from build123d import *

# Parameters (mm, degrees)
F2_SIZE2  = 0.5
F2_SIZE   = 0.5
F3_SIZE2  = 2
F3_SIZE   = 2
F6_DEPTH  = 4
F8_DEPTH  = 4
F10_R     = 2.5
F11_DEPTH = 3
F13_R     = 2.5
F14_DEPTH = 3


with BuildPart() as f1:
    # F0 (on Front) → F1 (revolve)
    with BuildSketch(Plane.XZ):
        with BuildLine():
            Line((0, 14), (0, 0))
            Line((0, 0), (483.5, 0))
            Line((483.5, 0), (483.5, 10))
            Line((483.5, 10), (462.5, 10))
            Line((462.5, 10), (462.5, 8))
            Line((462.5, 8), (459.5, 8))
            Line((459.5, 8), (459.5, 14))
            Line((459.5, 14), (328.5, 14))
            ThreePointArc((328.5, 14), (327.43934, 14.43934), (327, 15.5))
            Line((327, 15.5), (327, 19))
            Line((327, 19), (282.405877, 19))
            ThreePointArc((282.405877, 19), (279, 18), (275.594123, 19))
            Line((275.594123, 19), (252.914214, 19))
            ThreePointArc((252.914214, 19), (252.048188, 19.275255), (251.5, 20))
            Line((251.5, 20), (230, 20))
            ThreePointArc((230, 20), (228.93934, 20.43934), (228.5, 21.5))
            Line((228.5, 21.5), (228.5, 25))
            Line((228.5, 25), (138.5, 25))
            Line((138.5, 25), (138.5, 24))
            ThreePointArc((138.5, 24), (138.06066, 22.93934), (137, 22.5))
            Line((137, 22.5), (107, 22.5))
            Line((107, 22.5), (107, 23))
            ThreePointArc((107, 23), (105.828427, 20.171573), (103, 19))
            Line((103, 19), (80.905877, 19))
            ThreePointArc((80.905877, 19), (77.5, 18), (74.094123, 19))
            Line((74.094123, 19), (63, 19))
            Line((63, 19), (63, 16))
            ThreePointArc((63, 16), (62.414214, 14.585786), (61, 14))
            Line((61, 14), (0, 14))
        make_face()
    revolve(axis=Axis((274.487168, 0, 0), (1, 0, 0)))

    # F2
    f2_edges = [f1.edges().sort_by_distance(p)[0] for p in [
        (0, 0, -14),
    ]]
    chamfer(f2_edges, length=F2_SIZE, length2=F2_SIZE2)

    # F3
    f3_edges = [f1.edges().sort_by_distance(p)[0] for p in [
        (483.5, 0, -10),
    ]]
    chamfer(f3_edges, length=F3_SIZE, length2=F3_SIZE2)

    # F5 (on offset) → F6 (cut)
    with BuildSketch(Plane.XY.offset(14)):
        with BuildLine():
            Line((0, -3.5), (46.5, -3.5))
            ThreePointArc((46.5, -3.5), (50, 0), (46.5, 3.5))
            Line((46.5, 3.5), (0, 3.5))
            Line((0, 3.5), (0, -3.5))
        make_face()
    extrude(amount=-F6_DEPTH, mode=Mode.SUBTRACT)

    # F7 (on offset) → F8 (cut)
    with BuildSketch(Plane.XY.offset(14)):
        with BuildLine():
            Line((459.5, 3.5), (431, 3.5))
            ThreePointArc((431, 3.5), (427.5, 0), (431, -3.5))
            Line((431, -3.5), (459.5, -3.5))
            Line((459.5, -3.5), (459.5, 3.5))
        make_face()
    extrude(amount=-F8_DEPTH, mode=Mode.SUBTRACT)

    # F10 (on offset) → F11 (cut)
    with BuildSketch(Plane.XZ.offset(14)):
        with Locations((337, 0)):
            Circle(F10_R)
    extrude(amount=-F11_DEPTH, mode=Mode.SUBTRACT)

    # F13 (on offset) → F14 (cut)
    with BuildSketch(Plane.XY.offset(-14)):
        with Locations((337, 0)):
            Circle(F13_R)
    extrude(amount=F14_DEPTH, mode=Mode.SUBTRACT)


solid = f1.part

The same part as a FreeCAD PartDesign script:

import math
import FreeCAD as App
import Part
import Sketcher
from FreeCAD import Vector
Q = App.Units.Quantity


def edges_at(feature, points):
    """Names of the edges that pass closest to the given points."""
    edges = feature.Shape.Edges
    near = lambda p: min(range(len(edges)), key=lambda i: edges[i].distToShape(Part.Vertex(*p))[0])
    return sorted({f"Edge{near(p) + 1}" for p in points})

doc = App.newDocument("Part")
body = doc.addObject("PartDesign::Body", "Body")

# Sketch on XZ plane
sketch1 = doc.addObject("Sketcher::SketchObject", "Sketch")
body.addObject(sketch1)
sketch1.AttachmentSupport = (doc.XZ_Plane, [""])
sketch1.MapMode = "FlatFace"
sketch1.addGeometry(Part.LineSegment(Vector(0, 14, 0), Vector(0, 0, 0)), False)
sketch1.addGeometry(Part.LineSegment(Vector(0, 0, 0), Vector(483.5, 0, 0)), False)
sketch1.addGeometry(Part.LineSegment(Vector(483.5, 0, 0), Vector(483.5, 10, 0)), False)
sketch1.addGeometry(Part.LineSegment(Vector(483.5, 10, 0), Vector(462.5, 10, 0)), False)
sketch1.addGeometry(Part.LineSegment(Vector(462.5, 10, 0), Vector(462.5, 8, 0)), False)
sketch1.addGeometry(Part.LineSegment(Vector(462.5, 8, 0), Vector(459.5, 8, 0)), False)
sketch1.addGeometry(Part.LineSegment(Vector(459.5, 8, 0), Vector(459.5, 14, 0)), False)
sketch1.addGeometry(Part.LineSegment(Vector(459.5, 14, 0), Vector(328.5, 14, 0)), False)
sketch1.addGeometry(Part.ArcOfCircle(Part.Circle(Vector(328.5, 15.5, 0), Vector(0, 0, 1), 1.5), math.radians(-180), math.radians(-90)), False)
sketch1.addGeometry(Part.LineSegment(Vector(327, 15.5, 0), Vector(327, 19, 0)), False)
sketch1.addGeometry(Part.LineSegment(Vector(327, 19, 0), Vector(282.4, 19, 0)), False)
sketch1.addGeometry(Part.ArcOfCircle(Part.Circle(Vector(279, 24.3, 0), Vector(0, 0, 1), 6.3), math.radians(-123), math.radians(-57)), False)
sketch1.addGeometry(Part.LineSegment(Vector(275.6, 19, 0), Vector(252.9, 19, 0)), False)
sketch1.addGeometry(Part.ArcOfCircle(Part.Circle(Vector(252.9, 20.5, 0), Vector(0, 0, 1), 1.5), math.radians(-161), math.radians(-90)), False)
sketch1.addGeometry(Part.LineSegment(Vector(251.5, 20, 0), Vector(230, 20, 0)), False)
sketch1.addGeometry(Part.ArcOfCircle(Part.Circle(Vector(230, 21.5, 0), Vector(0, 0, 1), 1.5), math.radians(-180), math.radians(-90)), False)
sketch1.addGeometry(Part.LineSegment(Vector(228.5, 21.5, 0), Vector(228.5, 25, 0)), False)
sketch1.addGeometry(Part.LineSegment(Vector(228.5, 25, 0), Vector(138.5, 25, 0)), False)
sketch1.addGeometry(Part.LineSegment(Vector(138.5, 25, 0), Vector(138.5, 24, 0)), False)
sketch1.addGeometry(Part.ArcOfCircle(Part.Circle(Vector(137, 24, 0), Vector(0, 0, 1), 1.5), math.radians(-90), math.radians(0)), False)
sketch1.addGeometry(Part.LineSegment(Vector(137, 22.5, 0), Vector(107, 22.5, 0)), False)
sketch1.addGeometry(Part.LineSegment(Vector(107, 22.5, 0), Vector(107, 23, 0)), False)
sketch1.addGeometry(Part.ArcOfCircle(Part.Circle(Vector(103, 23, 0), Vector(0, 0, 1), 4), math.radians(-90), math.radians(0)), False)
sketch1.addGeometry(Part.LineSegment(Vector(103, 19, 0), Vector(80.9, 19, 0)), False)
sketch1.addGeometry(Part.ArcOfCircle(Part.Circle(Vector(77.5, 24.3, 0), Vector(0, 0, 1), 6.3), math.radians(-123), math.radians(-57)), False)
sketch1.addGeometry(Part.LineSegment(Vector(74.1, 19, 0), Vector(63, 19, 0)), False)
sketch1.addGeometry(Part.LineSegment(Vector(63, 19, 0), Vector(63, 16, 0)), False)
sketch1.addGeometry(Part.ArcOfCircle(Part.Circle(Vector(61, 16, 0), Vector(0, 0, 1), 2), math.radians(-90), math.radians(0)), False)
sketch1.addGeometry(Part.LineSegment(Vector(61, 14, 0), Vector(0, 14, 0)), False)
sketch1.addConstraint(Sketcher.Constraint("Coincident", 0, 2, 1, 1))
sketch1.addConstraint(Sketcher.Constraint("Coincident", 1, 2, 2, 1))
sketch1.addConstraint(Sketcher.Constraint("Coincident", 2, 2, 3, 1))
sketch1.addConstraint(Sketcher.Constraint("Coincident", 3, 2, 4, 1))
sketch1.addConstraint(Sketcher.Constraint("Coincident", 4, 2, 5, 1))
sketch1.addConstraint(Sketcher.Constraint("Coincident", 5, 2, 6, 1))
sketch1.addConstraint(Sketcher.Constraint("Coincident", 6, 2, 7, 1))
sketch1.addConstraint(Sketcher.Constraint("Tangent", 7, 2, 8, 2))
sketch1.addConstraint(Sketcher.Constraint("Tangent", 8, 1, 9, 1))
sketch1.addConstraint(Sketcher.Constraint("Coincident", 9, 2, 10, 1))
sketch1.addConstraint(Sketcher.Constraint("Coincident", 10, 2, 11, 2))
sketch1.addConstraint(Sketcher.Constraint("Coincident", 11, 1, 12, 1))
sketch1.addConstraint(Sketcher.Constraint("Tangent", 12, 2, 13, 2))
sketch1.addConstraint(Sketcher.Constraint("Coincident", 13, 1, 14, 1))
sketch1.addConstraint(Sketcher.Constraint("Tangent", 14, 2, 15, 2))
sketch1.addConstraint(Sketcher.Constraint("Tangent", 15, 1, 16, 1))
sketch1.addConstraint(Sketcher.Constraint("Coincident", 16, 2, 17, 1))
sketch1.addConstraint(Sketcher.Constraint("Coincident", 17, 2, 18, 1))
sketch1.addConstraint(Sketcher.Constraint("Tangent", 18, 2, 19, 2))
sketch1.addConstraint(Sketcher.Constraint("Tangent", 19, 1, 20, 1))
sketch1.addConstraint(Sketcher.Constraint("Coincident", 20, 2, 21, 1))
sketch1.addConstraint(Sketcher.Constraint("Tangent", 21, 2, 22, 2))
sketch1.addConstraint(Sketcher.Constraint("Tangent", 22, 1, 23, 1))
sketch1.addConstraint(Sketcher.Constraint("Coincident", 23, 2, 24, 2))
sketch1.addConstraint(Sketcher.Constraint("Coincident", 24, 1, 25, 1))
sketch1.addConstraint(Sketcher.Constraint("Coincident", 25, 2, 26, 1))
sketch1.addConstraint(Sketcher.Constraint("Tangent", 26, 2, 27, 2))
sketch1.addConstraint(Sketcher.Constraint("Tangent", 27, 1, 28, 1))
sketch1.addConstraint(Sketcher.Constraint("Coincident", 28, 2, 0, 1))
sketch1.addConstraint(Sketcher.Constraint("Vertical", 0))
sketch1.addConstraint(Sketcher.Constraint("Horizontal", 1))
sketch1.addConstraint(Sketcher.Constraint("Vertical", 2))
sketch1.addConstraint(Sketcher.Constraint("Horizontal", 3))
sketch1.addConstraint(Sketcher.Constraint("Vertical", 4))
sketch1.addConstraint(Sketcher.Constraint("Horizontal", 5))
sketch1.addConstraint(Sketcher.Constraint("Vertical", 6))
sketch1.addConstraint(Sketcher.Constraint("Horizontal", 7))
sketch1.addConstraint(Sketcher.Constraint("Vertical", 9))
sketch1.addConstraint(Sketcher.Constraint("Horizontal", 10))
sketch1.addConstraint(Sketcher.Constraint("Horizontal", 12))
sketch1.addConstraint(Sketcher.Constraint("Horizontal", 14))
sketch1.addConstraint(Sketcher.Constraint("Vertical", 16))
sketch1.addConstraint(Sketcher.Constraint("Horizontal", 17))
sketch1.addConstraint(Sketcher.Constraint("Vertical", 18))
sketch1.addConstraint(Sketcher.Constraint("Horizontal", 20))
sketch1.addConstraint(Sketcher.Constraint("Vertical", 21))
sketch1.addConstraint(Sketcher.Constraint("Horizontal", 23))
sketch1.addConstraint(Sketcher.Constraint("Horizontal", 25))
sketch1.addConstraint(Sketcher.Constraint("Vertical", 26))
sketch1.addConstraint(Sketcher.Constraint("Horizontal", 28))
sketch1.addConstraint(Sketcher.Constraint("Coincident", 0, 2, -1, 1))
sketch1.addConstraint(Sketcher.Constraint("Equal", 8, 13))
sketch1.addConstraint(Sketcher.Constraint("Equal", 13, 15))
sketch1.addConstraint(Sketcher.Constraint("Equal", 15, 19))
sketch1.addConstraint(Sketcher.Constraint("Equal", 11, 24))
sketch1.addConstraint(Sketcher.Constraint("Horizontal", 11, 3, 24, 3))
sketch1.addConstraint(Sketcher.Constraint("Horizontal", 10, 2, 11, 1))
sketch1.addConstraint(Sketcher.Constraint("Horizontal", 12, 2, 22, 1))
sketch1.addConstraint(Sketcher.Constraint("Horizontal", 23, 2, 24, 1))
sketch1.addConstraint(Sketcher.Constraint("Horizontal", 7, 2, 27, 1))
sketch1.addConstraint(Sketcher.Constraint("Equal", 9, 16))
sketch1.addConstraint(Sketcher.Constraint("Equal", 5, 26))
sketch1.addConstraint(Sketcher.Constraint("Radius", 22, Q("4 mm")))
sketch1.addConstraint(Sketcher.Constraint("Radius", 27, Q("1.999999 mm")))
sketch1.addConstraint(Sketcher.Constraint("Radius", 8, Q("1.500001 mm")))
sketch1.addConstraint(Sketcher.Constraint("Radius", 11, Q("6.299999 mm")))
sketch1.addConstraint(Sketcher.Constraint("DistanceX", 3, 2, 3, 1, Q("21 mm")))
sketch1.addConstraint(Sketcher.Constraint("DistanceX", 5, 2, 5, 1, Q("3 mm")))
sketch1.addConstraint(Sketcher.Constraint("DistanceX", 7, 2, 7, 1, Q("131 mm")))
sketch1.addConstraint(Sketcher.Constraint("DistanceX", 17, 2, 17, 1, Q("90 mm")))
sketch1.addConstraint(Sketcher.Constraint("DistanceX", 20, 2, 20, 1, Q("30 mm")))
sketch1.addConstraint(Sketcher.Constraint("DistanceX", 28, 2, 28, 1, Q("61 mm")))
sketch1.addConstraint(Sketcher.Constraint("DistanceY", 0, 2, 0, 1, Q("14 mm")))
sketch1.addConstraint(Sketcher.Constraint("DistanceY", 2, 1, 2, 2, Q("10 mm")))
sketch1.addConstraint(Sketcher.Constraint("DistanceY", 4, 2, 4, 1, Q("2 mm")))
sketch1.addConstraint(Sketcher.Constraint("DistanceY", 18, 2, 18, 1, Q("1 mm")))
sketch1.addConstraint(Sketcher.Constraint("DistanceX", 1, 1, 1, 2, Q("483.5 mm")))
sketch1.addConstraint(Sketcher.Constraint("DistanceX", 14, 2, 14, 1, Q("21.5 mm")))
sketch1.addConstraint(Sketcher.Constraint("DistanceY", 21, 1, 21, 2, Q("0.5 mm")))
sketch1.addConstraint(Sketcher.Constraint("DistanceX", -1, 1, 11, 3, Q("279 mm")))
sketch1.addConstraint(Sketcher.Constraint("DistanceX", -1, 1, 15, 3, Q("230.000001 mm")))
sketch1.addConstraint(Sketcher.Constraint("DistanceX", 24, 3, 17, 2, Q("61 mm")))
sketch1.addConstraint(Sketcher.Constraint("DistanceY", -1, 1, 11, 3, Q("24.299999 mm")))
revolution = doc.addObject("PartDesign::Revolution", "Revolution")
body.addObject(revolution)
revolution.Profile = sketch1
revolution.ReferenceAxis = (sketch1, ["H_Axis"])
revolution.Angle = 360
doc.recompute()

chamfer = doc.addObject("PartDesign::Chamfer", "Chamfer")
body.addObject(chamfer)
chamfer.Base = (revolution, edges_at(revolution, [(0, 0, -14)]))
chamfer.ChamferType = "Two distances"
chamfer.Size = 0.5
chamfer.Size2 = 0.5
doc.recompute()

chamfer2 = doc.addObject("PartDesign::Chamfer", "Chamfer001")
body.addObject(chamfer2)
chamfer2.Base = (chamfer, edges_at(chamfer, [(483.5, 0, -10)]))
chamfer2.ChamferType = "Two distances"
chamfer2.Size = 2
chamfer2.Size2 = 2

# Sketch on XY plane
sketch2 = doc.addObject("Sketcher::SketchObject", "Sketch001")
body.addObject(sketch2)
sketch2.AttachmentSupport = (doc.XY_Plane, [""])
sketch2.MapMode = "FlatFace"
sketch2.AttachmentOffset = App.Placement(Vector(0, 0, 14), App.Rotation())
sketch2.addGeometry(Part.LineSegment(Vector(0, -3.5, 0), Vector(46.5, -3.5, 0)), False)
sketch2.addGeometry(Part.ArcOfCircle(Part.Circle(Vector(46.5, 0, 0), Vector(0, 0, 1), 3.5), math.radians(-90), math.radians(90)), False)
sketch2.addGeometry(Part.LineSegment(Vector(46.5, 3.5, 0), Vector(0, 3.5, 0)), False)
sketch2.addGeometry(Part.LineSegment(Vector(0, 3.5, 0), Vector(0, -3.5, 0)), False)
sketch2.addConstraint(Sketcher.Constraint("Tangent", 0, 2, 1, 1))
sketch2.addConstraint(Sketcher.Constraint("Tangent", 1, 2, 2, 1))
sketch2.addConstraint(Sketcher.Constraint("Coincident", 2, 2, 3, 1))
sketch2.addConstraint(Sketcher.Constraint("Coincident", 3, 2, 0, 1))
sketch2.addConstraint(Sketcher.Constraint("Horizontal", 0))
sketch2.addConstraint(Sketcher.Constraint("Horizontal", 2))
sketch2.addConstraint(Sketcher.Constraint("Vertical", 3))
sketch2.addConstraint(Sketcher.Constraint("Symmetric", 2, 2, 3, 2, -1, 1))
sketch2.addConstraint(Sketcher.Constraint("Radius", 1, Q("3.5 mm")))
sketch2.addConstraint(Sketcher.Constraint("DistanceX", 0, 1, 0, 2, Q("46.5 mm")))
pocket1 = doc.addObject("PartDesign::Pocket", "Pocket")
body.addObject(pocket1)
pocket1.Profile = sketch2
pocket1.Length = 4

# Sketch on XY plane
sketch3 = doc.addObject("Sketcher::SketchObject", "Sketch002")
body.addObject(sketch3)
sketch3.AttachmentSupport = (doc.XY_Plane, [""])
sketch3.MapMode = "FlatFace"
sketch3.AttachmentOffset = App.Placement(Vector(0, 0, 14), App.Rotation())
sketch3.addGeometry(Part.LineSegment(Vector(459.5, 3.5, 0), Vector(431, 3.5, 0)), False)
sketch3.addGeometry(Part.ArcOfCircle(Part.Circle(Vector(431, 0, 0), Vector(0, 0, 1), 3.5), math.radians(90), math.radians(270)), False)
sketch3.addGeometry(Part.LineSegment(Vector(431, -3.5, 0), Vector(459.5, -3.5, 0)), False)
sketch3.addGeometry(Part.LineSegment(Vector(459.5, -3.5, 0), Vector(459.5, 3.5, 0)), False)
sketch3.addConstraint(Sketcher.Constraint("Tangent", 0, 2, 1, 1))
sketch3.addConstraint(Sketcher.Constraint("Tangent", 1, 2, 2, 1))
sketch3.addConstraint(Sketcher.Constraint("Coincident", 2, 2, 3, 1))
sketch3.addConstraint(Sketcher.Constraint("Coincident", 3, 2, 0, 1))
sketch3.addConstraint(Sketcher.Constraint("Horizontal", 0))
sketch3.addConstraint(Sketcher.Constraint("Horizontal", 2))
sketch3.addConstraint(Sketcher.Constraint("Vertical", 3))
sketch3.addConstraint(Sketcher.Constraint("PointOnObject", 1, 3, -1))
sketch3.addConstraint(Sketcher.Constraint("Radius", 1, Q("3.5 mm")))
sketch3.addConstraint(Sketcher.Constraint("DistanceX", 0, 2, 0, 1, Q("28.5 mm")))
sketch3.addConstraint(Sketcher.Constraint("DistanceX", -1, 1, 1, 3, Q("431 mm")))
pocket2 = doc.addObject("PartDesign::Pocket", "Pocket001")
body.addObject(pocket2)
pocket2.Profile = sketch3
pocket2.Length = 4

# Sketch on XZ plane
sketch4 = doc.addObject("Sketcher::SketchObject", "Sketch003")
body.addObject(sketch4)
sketch4.AttachmentSupport = (doc.XZ_Plane, [""])
sketch4.MapMode = "FlatFace"
sketch4.AttachmentOffset = App.Placement(Vector(0, 0, 14), App.Rotation())
sketch4.addGeometry(Part.Circle(Vector(337, 0, 0), Vector(0, 0, 1), 2.5), False)
sketch4.addConstraint(Sketcher.Constraint("PointOnObject", 0, 3, -1))
sketch4.addConstraint(Sketcher.Constraint("Diameter", 0, Q("5 mm")))
sketch4.addConstraint(Sketcher.Constraint("DistanceX", -1, 1, 0, 3, Q("337 mm")))
pocket3 = doc.addObject("PartDesign::Pocket", "Pocket002")
body.addObject(pocket3)
pocket3.Profile = sketch4
pocket3.Length = 3

# Sketch on XY plane
sketch5 = doc.addObject("Sketcher::SketchObject", "Sketch004")
body.addObject(sketch5)
sketch5.AttachmentSupport = (doc.XY_Plane, [""])
sketch5.MapMode = "FlatFace"
sketch5.AttachmentOffset = App.Placement(Vector(0, 0, -14), App.Rotation())
sketch5.addGeometry(Part.Circle(Vector(337, 0, 0), Vector(0, 0, 1), 2.5), False)
sketch5.addConstraint(Sketcher.Constraint("PointOnObject", 0, 3, -1))
sketch5.addConstraint(Sketcher.Constraint("Diameter", 0, Q("5 mm")))
sketch5.addConstraint(Sketcher.Constraint("DistanceX", -1, 1, 0, 3, Q("337 mm")))
pocket4 = doc.addObject("PartDesign::Pocket", "Pocket003")
body.addObject(pocket4)
pocket4.Profile = sketch5
pocket4.Length = 3
pocket4.Reversed = True

doc.recompute()
